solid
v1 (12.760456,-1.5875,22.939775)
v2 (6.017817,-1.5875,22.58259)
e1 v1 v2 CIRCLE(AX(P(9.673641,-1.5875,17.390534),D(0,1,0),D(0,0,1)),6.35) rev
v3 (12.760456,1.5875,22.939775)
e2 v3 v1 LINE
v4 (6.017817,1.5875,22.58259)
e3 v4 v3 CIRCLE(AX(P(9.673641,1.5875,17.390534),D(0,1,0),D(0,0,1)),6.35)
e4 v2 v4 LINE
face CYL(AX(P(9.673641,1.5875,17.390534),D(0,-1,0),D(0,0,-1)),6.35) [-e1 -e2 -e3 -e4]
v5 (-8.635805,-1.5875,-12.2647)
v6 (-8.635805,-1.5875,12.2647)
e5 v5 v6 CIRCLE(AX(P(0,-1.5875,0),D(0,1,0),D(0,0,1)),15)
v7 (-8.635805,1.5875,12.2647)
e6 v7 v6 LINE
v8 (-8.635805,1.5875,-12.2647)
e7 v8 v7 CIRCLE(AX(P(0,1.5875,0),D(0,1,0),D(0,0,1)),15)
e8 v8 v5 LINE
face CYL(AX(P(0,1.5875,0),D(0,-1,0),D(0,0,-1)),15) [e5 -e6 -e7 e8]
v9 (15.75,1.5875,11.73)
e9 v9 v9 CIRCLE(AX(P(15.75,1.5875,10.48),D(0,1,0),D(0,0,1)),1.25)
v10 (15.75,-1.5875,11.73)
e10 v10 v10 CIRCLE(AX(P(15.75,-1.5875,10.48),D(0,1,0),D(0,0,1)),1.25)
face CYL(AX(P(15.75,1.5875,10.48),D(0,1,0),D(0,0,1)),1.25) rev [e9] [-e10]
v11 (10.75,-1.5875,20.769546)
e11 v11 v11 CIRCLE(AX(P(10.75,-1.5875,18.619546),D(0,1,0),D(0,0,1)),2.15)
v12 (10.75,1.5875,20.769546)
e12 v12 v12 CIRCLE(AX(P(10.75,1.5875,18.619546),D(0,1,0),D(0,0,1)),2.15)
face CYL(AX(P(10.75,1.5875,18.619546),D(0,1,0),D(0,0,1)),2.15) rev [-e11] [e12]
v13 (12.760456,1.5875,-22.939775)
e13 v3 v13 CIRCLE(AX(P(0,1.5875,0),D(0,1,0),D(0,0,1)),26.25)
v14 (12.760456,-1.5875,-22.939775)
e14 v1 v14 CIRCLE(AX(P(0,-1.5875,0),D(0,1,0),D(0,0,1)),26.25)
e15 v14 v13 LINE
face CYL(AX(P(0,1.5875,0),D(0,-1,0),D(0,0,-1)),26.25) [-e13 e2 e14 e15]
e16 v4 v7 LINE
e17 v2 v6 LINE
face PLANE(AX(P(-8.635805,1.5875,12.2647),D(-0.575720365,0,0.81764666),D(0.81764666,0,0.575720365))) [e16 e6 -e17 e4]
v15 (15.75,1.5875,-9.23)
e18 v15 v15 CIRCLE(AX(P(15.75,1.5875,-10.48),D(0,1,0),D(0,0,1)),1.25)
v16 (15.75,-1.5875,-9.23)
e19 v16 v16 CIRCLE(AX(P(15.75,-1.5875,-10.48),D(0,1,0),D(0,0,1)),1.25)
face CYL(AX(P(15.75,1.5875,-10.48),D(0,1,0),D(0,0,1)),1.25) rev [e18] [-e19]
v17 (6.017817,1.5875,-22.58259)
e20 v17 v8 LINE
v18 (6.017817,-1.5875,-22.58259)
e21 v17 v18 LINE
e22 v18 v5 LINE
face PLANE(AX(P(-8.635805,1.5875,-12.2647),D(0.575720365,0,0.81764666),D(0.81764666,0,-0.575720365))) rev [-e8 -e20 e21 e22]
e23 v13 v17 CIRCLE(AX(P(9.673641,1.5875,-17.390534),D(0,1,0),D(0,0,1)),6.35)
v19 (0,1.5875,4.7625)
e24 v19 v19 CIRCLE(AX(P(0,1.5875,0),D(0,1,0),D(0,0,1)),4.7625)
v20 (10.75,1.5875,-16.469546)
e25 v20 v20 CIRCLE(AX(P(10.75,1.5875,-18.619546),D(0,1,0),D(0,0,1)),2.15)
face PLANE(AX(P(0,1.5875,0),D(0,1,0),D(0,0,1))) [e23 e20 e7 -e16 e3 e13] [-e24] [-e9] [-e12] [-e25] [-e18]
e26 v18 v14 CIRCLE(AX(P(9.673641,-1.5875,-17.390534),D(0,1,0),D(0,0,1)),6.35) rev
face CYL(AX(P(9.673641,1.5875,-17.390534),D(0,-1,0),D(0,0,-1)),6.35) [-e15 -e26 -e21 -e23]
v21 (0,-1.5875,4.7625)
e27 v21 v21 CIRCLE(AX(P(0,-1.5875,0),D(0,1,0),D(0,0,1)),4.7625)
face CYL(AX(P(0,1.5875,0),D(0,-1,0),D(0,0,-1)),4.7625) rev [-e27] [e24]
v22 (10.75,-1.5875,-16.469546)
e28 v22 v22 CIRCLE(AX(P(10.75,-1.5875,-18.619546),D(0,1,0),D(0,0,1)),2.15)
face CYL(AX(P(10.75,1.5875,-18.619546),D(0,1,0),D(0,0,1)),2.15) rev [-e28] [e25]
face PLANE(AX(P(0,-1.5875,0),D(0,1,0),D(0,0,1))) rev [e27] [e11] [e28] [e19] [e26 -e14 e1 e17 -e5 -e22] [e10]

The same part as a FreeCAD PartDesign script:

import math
import FreeCAD as App
import Part
import Sketcher
Q = App.Units.Quantity


def edges_at(feature, points):
    """Names of the edges that pass closest to the given points."""
    edges = feature.Shape.Edges
    near = lambda p: min(range(len(edges)), key=lambda i: edges[i].distToShape(Part.Vertex(*p))[0])
    return sorted({f"Edge{near(p) + 1}" for p in points})

doc = App.newDocument("Part")
body = doc.addObject("PartDesign::Body", "Body")

# Sketch on XZ plane
sketch1 = body.newObject("Sketcher::SketchObject", "Sketch")
sketch1.AttachmentSupport = (doc.getObject("XZ_Plane"), [""])
sketch1.MapMode = "FlatFace"
sketch1.addGeometry(Part.LineSegment(App.Vector(-8.6, 12.3, 0), App.Vector(9, 24.7, 0)), False)
sketch1.addGeometry(Part.ArcOfCircle(Part.Circle(App.Vector(0, 0, 0), App.Vector(0, 0, 1), 26.2), math.radians(-70), math.radians(70)), False)
sketch1.addGeometry(Part.LineSegment(App.Vector(9, -24.7, 0), App.Vector(-8.6, -12.3, 0)), False)
sketch1.addGeometry(Part.ArcOfCircle(Part.Circle(App.Vector(0, 0, 0), App.Vector(0, 0, 1), 15), math.radians(125), math.radians(235)), False)
sketch1.addGeometry(Part.Circle(App.Vector(0, 0, 0), App.Vector(0, 0, 1), 4.8), False)
sketch1.addConstraint(Sketcher.Constraint("Coincident", 0, 2, 1, 2))
sketch1.addConstraint(Sketcher.Constraint("Coincident", 1, 1, 2, 1))
sketch1.addConstraint(Sketcher.Constraint("Tangent", 2, 2, 3, 2))
sketch1.addConstraint(Sketcher.Constraint("Tangent", 3, 1, 0, 1))
sketch1.addConstraint(Sketcher.Constraint("Coincident", 1, 3, -1, 1))
sketch1.addConstraint(Sketcher.Constraint("Coincident", 3, 3, -1, 1))
sketch1.addConstraint(Sketcher.Constraint("Coincident", 4, 3, -1, 1))
sketch1.addConstraint(Sketcher.Constraint("Vertical", 0, 2, 1, 1))
sketch1.addConstraint(Sketcher.Constraint("Radius", 3, Q("15 mm")))
sketch1.addConstraint(Sketcher.Constraint("Radius", 1, Q("26.25 mm")))
sketch1.addConstraint(Sketcher.Constraint("Diameter", 4, Q("9.525 mm")))
sketch1.addConstraint(Sketcher.Constraint("DistanceY", 2, 2, -1, 1, Q("12.2647 mm")))
pad1 = body.newObject("PartDesign::Pad", "Pad")
pad1.Profile = sketch1
pad1.Length = 3.175
pad1.Midplane = True

# Sketch on XZ plane
sketch2 = body.newObject("Sketcher::SketchObject", "Sketch001")
sketch2.AttachmentSupport = (doc.getObject("XZ_Plane"), [""])
sketch2.MapMode = "FlatFace"
sketch2.AttachmentOffset = App.Placement(App.Vector(0, 0, -1.5875), App.Rotation())
sketch2.addGeometry(Part.Circle(App.Vector(10.8, 18.6, 0), App.Vector(0, 0, 1), 2.1), False)
sketch2.addGeometry(Part.Circle(App.Vector(10.8, -18.6, 0), App.Vector(0, 0, 1), 2.1), False)
sketch2.addConstraint(Sketcher.Constraint("Equal", 0, 1))
sketch2.addConstraint(Sketcher.Constraint("Symmetric", 0, 3, 1, 3, -1))
sketch2.addConstraint(Sketcher.Constraint("Diameter", 0, Q("4.3 mm")))
sketch2.addConstraint(Sketcher.Constraint("DistanceX", -1, 1, 0, 3, Q("10.75 mm")))
sketch2.addConstraint(Sketcher.Constraint("DistanceY", -1, 1, 0, 3, Q("18.619546 mm")))
doc.recompute()
hole = body.newObject("PartDesign::Hole", "Hole")
hole.Profile = sketch2
hole.ThreadType = "None"
hole.Diameter = 4.3
hole.DepthType = "ThroughAll"
hole.Reversed = True

# Sketch on XZ plane
sketch3 = body.newObject("Sketcher::SketchObject", "Sketch002")
sketch3.AttachmentSupport = (doc.getObject("XZ_Plane"), [""])
sketch3.MapMode = "FlatFace"
sketch3.AttachmentOffset = App.Placement(App.Vector(0, 0, -1.5875), App.Rotation())
sketch3.addGeometry(Part.Circle(App.Vector(0, 0, 0), App.Vector(0, 0, 1), 1.2), False)
sketch3.addGeometry(Part.Circle(App.Vector(15.8, 10.5, 0), App.Vector(0, 0, 1), 1.2), False)
sketch3.addGeometry(Part.Circle(App.Vector(15.8, -10.5, 0), App.Vector(0, 0, 1), 1.2), False)
sketch3.addConstraint(Sketcher.Constraint("Coincident", 0, 3, -1, 1))
sketch3.addConstraint(Sketcher.Constraint("Equal", 0, 1))
sketch3.addConstraint(Sketcher.Constraint("Equal", 1, 2))
sketch3.addConstraint(Sketcher.Constraint("Symmetric", 1, 3, 2, 3, -1))
sketch3.addConstraint(Sketcher.Constraint("Diameter", 0, Q("2.5 mm")))
sketch3.addConstraint(Sketcher.Constraint("DistanceX", -1, 1, 1, 3, Q("15.75 mm")))
sketch3.addConstraint(Sketcher.Constraint("DistanceY", -1, 1, 1, 3, Q("10.48 mm")))
doc.recompute()
hole2 = body.newObject("PartDesign::Hole", "Hole001")
hole2.Profile = sketch3
hole2.ThreadType = "None"
hole2.Diameter = 2.5
hole2.DepthType = "Dimension"
hole2.Depth = 3.175
hole2.DrillPoint = "Flat"
hole2.Reversed = True
doc.recompute()

fillet = body.newObject("PartDesign::Fillet", "Fillet")
fillet.Base = (hole2, edges_at(hole2, [(8.978, 0, -24.667), (8.978, 0, 24.667)]))
fillet.Radius = 6.35

doc.recompute()
